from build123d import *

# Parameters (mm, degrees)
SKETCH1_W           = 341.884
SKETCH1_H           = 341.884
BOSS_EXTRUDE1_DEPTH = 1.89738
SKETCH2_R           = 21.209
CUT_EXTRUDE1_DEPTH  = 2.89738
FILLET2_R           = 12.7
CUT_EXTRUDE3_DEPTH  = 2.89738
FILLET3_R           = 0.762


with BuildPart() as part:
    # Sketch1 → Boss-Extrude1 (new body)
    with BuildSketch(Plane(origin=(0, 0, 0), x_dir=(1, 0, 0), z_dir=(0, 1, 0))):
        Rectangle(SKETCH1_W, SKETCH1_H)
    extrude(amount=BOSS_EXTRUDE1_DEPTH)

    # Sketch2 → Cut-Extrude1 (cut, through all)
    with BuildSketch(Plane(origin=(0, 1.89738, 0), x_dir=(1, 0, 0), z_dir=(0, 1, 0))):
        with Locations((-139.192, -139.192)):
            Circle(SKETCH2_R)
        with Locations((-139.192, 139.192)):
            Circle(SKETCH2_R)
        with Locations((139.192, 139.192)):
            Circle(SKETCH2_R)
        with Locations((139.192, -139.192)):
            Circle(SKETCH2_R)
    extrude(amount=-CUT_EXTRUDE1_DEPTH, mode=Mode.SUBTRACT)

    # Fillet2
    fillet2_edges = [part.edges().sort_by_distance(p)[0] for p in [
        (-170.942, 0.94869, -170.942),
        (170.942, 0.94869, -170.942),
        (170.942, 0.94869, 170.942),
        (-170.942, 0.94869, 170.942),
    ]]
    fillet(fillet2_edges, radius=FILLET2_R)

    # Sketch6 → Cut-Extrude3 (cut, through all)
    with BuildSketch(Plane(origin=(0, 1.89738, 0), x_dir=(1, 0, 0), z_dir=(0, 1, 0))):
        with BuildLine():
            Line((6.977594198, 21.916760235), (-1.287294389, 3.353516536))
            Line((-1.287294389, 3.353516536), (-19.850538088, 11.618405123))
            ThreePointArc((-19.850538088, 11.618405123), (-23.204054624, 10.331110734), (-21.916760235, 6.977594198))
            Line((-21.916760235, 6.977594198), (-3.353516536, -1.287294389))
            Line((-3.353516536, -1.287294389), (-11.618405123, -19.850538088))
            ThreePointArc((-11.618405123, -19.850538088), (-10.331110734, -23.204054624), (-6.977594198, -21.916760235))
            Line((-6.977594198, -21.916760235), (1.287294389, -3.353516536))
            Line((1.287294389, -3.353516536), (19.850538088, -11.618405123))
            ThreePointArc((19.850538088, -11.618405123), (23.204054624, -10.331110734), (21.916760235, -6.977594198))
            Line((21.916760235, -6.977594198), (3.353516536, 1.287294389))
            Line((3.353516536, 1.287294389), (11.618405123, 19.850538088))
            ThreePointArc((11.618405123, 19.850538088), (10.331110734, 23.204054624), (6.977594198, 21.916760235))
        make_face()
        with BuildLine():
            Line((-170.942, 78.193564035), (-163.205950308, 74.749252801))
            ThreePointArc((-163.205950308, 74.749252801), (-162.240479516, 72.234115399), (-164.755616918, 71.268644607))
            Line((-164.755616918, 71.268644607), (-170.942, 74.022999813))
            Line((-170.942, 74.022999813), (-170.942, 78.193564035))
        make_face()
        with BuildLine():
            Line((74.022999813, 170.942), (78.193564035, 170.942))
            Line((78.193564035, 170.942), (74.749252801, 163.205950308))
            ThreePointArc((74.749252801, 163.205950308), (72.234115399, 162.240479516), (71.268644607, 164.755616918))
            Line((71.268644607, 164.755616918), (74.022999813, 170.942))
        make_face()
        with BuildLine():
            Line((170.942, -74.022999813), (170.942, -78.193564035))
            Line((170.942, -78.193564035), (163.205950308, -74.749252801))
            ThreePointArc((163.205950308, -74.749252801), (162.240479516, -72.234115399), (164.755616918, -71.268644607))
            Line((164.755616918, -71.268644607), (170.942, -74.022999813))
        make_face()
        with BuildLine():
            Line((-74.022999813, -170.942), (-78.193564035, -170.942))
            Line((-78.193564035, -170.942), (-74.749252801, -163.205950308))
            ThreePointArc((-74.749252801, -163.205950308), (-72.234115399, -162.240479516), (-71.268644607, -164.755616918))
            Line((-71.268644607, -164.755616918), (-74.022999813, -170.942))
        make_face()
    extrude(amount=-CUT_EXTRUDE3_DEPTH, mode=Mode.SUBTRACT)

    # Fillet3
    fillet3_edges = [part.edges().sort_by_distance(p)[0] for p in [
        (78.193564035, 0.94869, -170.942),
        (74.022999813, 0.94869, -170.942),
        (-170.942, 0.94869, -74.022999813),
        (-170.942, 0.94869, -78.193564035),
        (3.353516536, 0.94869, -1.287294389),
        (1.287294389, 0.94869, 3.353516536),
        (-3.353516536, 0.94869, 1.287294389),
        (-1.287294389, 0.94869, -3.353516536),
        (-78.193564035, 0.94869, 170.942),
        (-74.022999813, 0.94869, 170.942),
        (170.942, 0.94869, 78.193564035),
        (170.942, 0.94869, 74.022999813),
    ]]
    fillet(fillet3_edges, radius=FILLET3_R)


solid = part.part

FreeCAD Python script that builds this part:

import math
import FreeCAD as App
import Part
import Sketcher
from FreeCAD import Vector
Q = App.Units.Quantity


def edges_at(feature, points):
    """Names of the edges that pass closest to the given points."""
    edges = feature.Shape.Edges
    near = lambda p: min(range(len(edges)), key=lambda i: edges[i].distToShape(Part.Vertex(*p))[0])
    return sorted({f"Edge{near(p) + 1}" for p in points})


def add_polygon(sketch, points):
    """Adds a closed chain of lines whose ends are joined by coincident constraints."""
    first, n = sketch.GeometryCount, len(points)
    for a, b in zip(points, points[1:] + points[:1]):
        sketch.addGeometry(Part.LineSegment(App.Vector(*a, 0), App.Vector(*b, 0)), False)
    for i in range(n):
        sketch.addConstraint(Sketcher.Constraint("Coincident", first + i, 2, first + (i + 1) % n, 1))

doc = App.newDocument("Part")
params = doc.addObject("Spreadsheet::Sheet", "Params")
for row, (alias, value) in enumerate([
    ("sketch1_width", "13.46 in"),
    ("pad1_length", "0.0747 in"),
    ("sketch2_diameter", "1.67 in"),
    ("fillet_radius", "0.5 in"),
    ("sketch3_radius", "0.1 in"),
    ("sketch3_radius2", "0.075 in"),
    ("sketch3_length", "0.8 in"),
    ("fillet2_radius", "0.03 in"),
], start=1):
    params.set(f"A{row}", alias)
    params.set(f"B{row}", "=" + value)
    params.setAlias(f"B{row}", alias)

body = doc.addObject("PartDesign::Body", "Body")

sketch1 = body.newObject("Sketcher::SketchObject", "Sketch")
sketch1.AttachmentSupport = (doc.getObject("XZ_Plane"), [""])
sketch1.MapMode = "FlatFace"
add_polygon(sketch1, [(-171, -171), (-171, 171), (171, 171), (171, -171)])
sketch1.addConstraint([
    Sketcher.Constraint("Vertical", 0),
    Sketcher.Constraint("Horizontal", 1),
    Sketcher.Constraint("Vertical", 2),
    Sketcher.Constraint("Horizontal", 3),
    Sketcher.Constraint("Symmetric", 0, 2, 2, 2, -1, 1),
    Sketcher.Constraint("Equal", 3, 0),
    Sketcher.Constraint("DistanceX", 1, 1, 1, 2, Q("13.46 in")),
])
sketch1.setExpression("Constraints[10]", "Params.sketch1_width")
pad1 = body.newObject("PartDesign::Pad", "Pad")
pad1.Profile = sketch1
pad1.setExpression("Length", "Params.pad1_length")
pad1.Reversed = True

sketch2 = body.newObject("Sketcher::SketchObject", "Sketch001")
sketch2.AttachmentSupport = (doc.getObject("XZ_Plane"), [""])
sketch2.MapMode = "FlatFace"
sketch2.AttachmentOffset = App.Placement(Vector(0, 0, -0.0747 * 25.4), App.Rotation())
sketch2.addGeometry([
    Part.Circle(Vector(-139, 139, 0), Vector(0, 0, 1), 21),
    Part.Circle(Vector(-139, -139, 0), Vector(0, 0, 1), 21),
    Part.Circle(Vector(139, -139, 0), Vector(0, 0, 1), 21),
    Part.Circle(Vector(139, 139, 0), Vector(0, 0, 1), 21),
], False)
sketch2.addConstraint([
    Sketcher.Constraint("Equal", 0, 1),
    Sketcher.Constraint("Equal", 1, 2),
    Sketcher.Constraint("Equal", 2, 3),
    Sketcher.Constraint("Symmetric", 0, 3, 2, 3, -1, 1),
    Sketcher.Constraint("Symmetric", 1, 3, 3, 3, -1, 1),
    Sketcher.Constraint("Symmetric", 1, 3, 2, 3, -2),
    Sketcher.Constraint("Diameter", 0, Q("1.67 in")),
    Sketcher.Constraint("DistanceX", 0, 3, -1, 1, Q("5.48 in")),
    Sketcher.Constraint("DistanceY", -1, 1, 0, 3, Q("5.48 in")),
])
sketch2.setExpression("Constraints[6]", "Params.sketch2_diameter")
pocket1 = body.newObject("PartDesign::Pocket", "Pocket")
pocket1.Profile = sketch2
pocket1.Type = "ThroughAll"
pocket1.Reversed = True
doc.recompute()

fillet = body.newObject("PartDesign::Fillet", "Fillet")
fillet.Base = (pocket1, edges_at(pocket1, [
    (-170.942, 0.949, -170.942),
    (170.942, 0.949, -170.942),
    (170.942, 0.949, 170.942),
    (-170.942, 0.949, 170.942),
]))
fillet.setExpression("Radius", "Params.fillet_radius")

sketch3 = body.newObject("Sketcher::SketchObject", "Sketch002")
sketch3.AttachmentSupport = (doc.getObject("XZ_Plane"), [""])
sketch3.MapMode = "FlatFace"
sketch3.AttachmentOffset = App.Placement(Vector(0, 0, -0.0747 * 25.4), App.Rotation())
sketch3.addGeometry([
    Part.LineSegment(Vector(7, -21.9, 0), Vector(-1.3, -3.4, 0)),
    Part.LineSegment(Vector(-1.3, -3.4, 0), Vector(-19.9, -11.6, 0)),
    Part.ArcOfCircle(Part.Circle(Vector(-20.9, -9.3, 0), Vector(0, 0, 1), 2.5), math.radians(114), math.radians(294)),
    Part.LineSegment(Vector(-21.9, -7, 0), Vector(-3.4, 1.3, 0)),
    Part.LineSegment(Vector(-3.4, 1.3, 0), Vector(-11.6, 19.9, 0)),
    Part.ArcOfCircle(Part.Circle(Vector(-9.3, 20.9, 0), Vector(0, 0, 1), 2.5), math.radians(24), math.radians(204)),
    Part.LineSegment(Vector(-7, 21.9, 0), Vector(1.3, 3.4, 0)),
    Part.LineSegment(Vector(1.3, 3.4, 0), Vector(19.9, 11.6, 0)),
    Part.ArcOfCircle(Part.Circle(Vector(20.9, 9.3, 0), Vector(0, 0, 1), 2.5), math.radians(-66), math.radians(114)),
    Part.LineSegment(Vector(21.9, 7, 0), Vector(3.4, -1.3, 0)),
    Part.LineSegment(Vector(3.4, -1.3, 0), Vector(11.6, -19.9, 0)),
    Part.ArcOfCircle(Part.Circle(Vector(9.3, -20.9, 0), Vector(0, 0, 1), 2.5), math.radians(-156), math.radians(24)),
    Part.LineSegment(Vector(-163.2, -74.7, 0), Vector(-170.9, -78.2, 0)),
    Part.LineSegment(Vector(-170.9, -78.2, 0), Vector(-170.9, -74, 0)),
    Part.LineSegment(Vector(-170.9, -74, 0), Vector(-164.8, -71.3, 0)),
    Part.ArcOfCircle(Part.Circle(Vector(-164, -73, 0), Vector(0, 0, 1), 1.9), math.radians(-66), math.radians(114)),
    Part.LineSegment(Vector(78.2, -170.9, 0), Vector(74, -170.9, 0)),
    Part.LineSegment(Vector(74, -170.9, 0), Vector(71.3, -164.8, 0)),
    Part.ArcOfCircle(Part.Circle(Vector(73, -164, 0), Vector(0, 0, 1), 1.9), math.radians(24), math.radians(204)),
    Part.LineSegment(Vector(74.7, -163.2, 0), Vector(78.2, -170.9, 0)),
    Part.LineSegment(Vector(170.9, 78.2, 0), Vector(170.9, 74, 0)),
    Part.LineSegment(Vector(170.9, 74, 0), Vector(164.8, 71.3, 0)),
    Part.ArcOfCircle(Part.Circle(Vector(164, 73, 0), Vector(0, 0, 1), 1.9), math.radians(114), math.radians(294)),
    Part.LineSegment(Vector(163.2, 74.7, 0), Vector(170.9, 78.2, 0)),
    Part.LineSegment(Vector(-78.2, 170.9, 0), Vector(-74, 170.9, 0)),
    Part.LineSegment(Vector(-74, 170.9, 0), Vector(-71.3, 164.8, 0)),
    Part.ArcOfCircle(Part.Circle(Vector(-73, 164, 0), Vector(0, 0, 1), 1.9), math.radians(-156), math.radians(24)),
    Part.LineSegment(Vector(-74.7, 163.2, 0), Vector(-78.2, 170.9, 0)),
], False)
sketch3.addConstraint([
    Sketcher.Constraint("Coincident", 0, 2, 1, 1),
    Sketcher.Constraint("Tangent", 1, 2, 2, 2),
    Sketcher.Constraint("Tangent", 2, 1, 3, 1),
    Sketcher.Constraint("Coincident", 3, 2, 4, 1),
    Sketcher.Constraint("Tangent", 4, 2, 5, 2),
    Sketcher.Constraint("Tangent", 5, 1, 6, 1),
    Sketcher.Constraint("Coincident", 6, 2, 7, 1),
    Sketcher.Constraint("Tangent", 7, 2, 8, 2),
    Sketcher.Constraint("Tangent", 8, 1, 9, 1),
    Sketcher.Constraint("Coincident", 9, 2, 10, 1),
    Sketcher.Constraint("Tangent", 10, 2, 11, 2),
    Sketcher.Constraint("Tangent", 11, 1, 0, 1),
    Sketcher.Constraint("Coincident", 12, 2, 13, 1),
    Sketcher.Constraint("Coincident", 13, 2, 14, 1),
    Sketcher.Constraint("Tangent", 14, 2, 15, 2),
    Sketcher.Constraint("Tangent", 15, 1, 12, 1),
    Sketcher.Constraint("Coincident", 16, 2, 17, 1),
    Sketcher.Constraint("Tangent", 17, 2, 18, 2),
    Sketcher.Constraint("Tangent", 18, 1, 19, 1),
    Sketcher.Constraint("Coincident", 19, 2, 16, 1),
    Sketcher.Constraint("Coincident", 20, 2, 21, 1),
    Sketcher.Constraint("Tangent", 21, 2, 22, 2),
    Sketcher.Constraint("Tangent", 22, 1, 23, 1),
    Sketcher.Constraint("Coincident", 23, 2, 20, 1),
    Sketcher.Constraint("Coincident", 24, 2, 25, 1),
    Sketcher.Constraint("Tangent", 25, 2, 26, 2),
    Sketcher.Constraint("Tangent", 26, 1, 27, 1),
    Sketcher.Constraint("Coincident", 27, 2, 24, 1),
    Sketcher.Constraint("Vertical", 13),
    Sketcher.Constraint("Horizontal", 16),
    Sketcher.Constraint("Vertical", 20),
    Sketcher.Constraint("Horizontal", 24),
    Sketcher.Constraint("Equal", 2, 5),
    Sketcher.Constraint("Equal", 5, 8),
    Sketcher.Constraint("Equal", 8, 11),
    Sketcher.Constraint("Equal", 15, 18),
    Sketcher.Constraint("Equal", 18, 22),
    Sketcher.Constraint("Equal", 22, 26),
    Sketcher.Constraint("Symmetric", 2, 3, 8, 3, -1, 1),
    Sketcher.Constraint("Symmetric", 5, 3, 11, 3, -1, 1),
    Sketcher.Constraint("Symmetric", 15, 3, 22, 3, -1, 1),
    Sketcher.Constraint("Symmetric", 18, 3, 26, 3, -1, 1),
    Sketcher.Constraint("Symmetric", 0, 2, 6, 2, -1, 1),
    Sketcher.Constraint("Symmetric", 3, 2, 9, 2, -1, 1),
    Sketcher.Constraint("Symmetric", 13, 2, 20, 2, -1, 1),
    Sketcher.Constraint("Symmetric", 16, 2, 24, 2, -1, 1),
    Sketcher.Constraint("Perpendicular", 0, 1),
    Sketcher.Constraint("Parallel", 1, 3),
    Sketcher.Constraint("Perpendicular", 3, 4),
    Sketcher.Constraint("Perpendicular", 10, 12),
    Sketcher.Constraint("Parallel", 12, 14),
    Sketcher.Constraint("Perpendicular", 14, 17),
    Sketcher.Constraint("Parallel", 17, 19),
    Sketcher.Constraint("Parallel", 21, 23),
    Sketcher.Constraint("Parallel", 25, 27),
    Sketcher.Constraint("Equal", 0, 1),
    Sketcher.Constraint("Equal", 1, 3),
    Sketcher.Constraint("Equal", 3, 4),
    Sketcher.Constraint("Equal", 14, 17),
    Sketcher.Constraint("Radius", 2, Q("0.1 in")),
    Sketcher.Constraint("Angle", 0, Q("114 deg")),
    Sketcher.Constraint("Radius", 15, Q("0.075 in")),
    Sketcher.Constraint("Distance", 0, Q("0.8 in")),
    Sketcher.Constraint("DistanceX", 12, 2, -1, 1, Q("6.73 in")),
    Sketcher.Constraint("DistanceY", 16, 2, -1, 1, Q("6.73 in")),
    Sketcher.Constraint("DistanceY", 13, 2, -1, 1, Q("74.023 mm")),
    Sketcher.Constraint("DistanceX", -1, 1, 16, 2, Q("74.023 mm")),
    Sketcher.Constraint("DistanceY", 15, 3, 11, 3, Q("52.1253 mm")),
])
sketch3.setExpression("Constraints[59]", "Params.sketch3_radius")
sketch3.setExpression("Constraints[61]", "Params.sketch3_radius2")
sketch3.setExpression("Constraints[62]", "Params.sketch3_length")
pocket2 = body.newObject("PartDesign::Pocket", "Pocket001")
pocket2.Profile = sketch3
pocket2.Type = "ThroughAll"
pocket2.Reversed = True
doc.recompute()

fillet2 = body.newObject("PartDesign::Fillet", "Fillet001")
fillet2.Base = (pocket2, edges_at(pocket2, [
    (78.194, 0.949, -170.942),
    (74.023, 0.949, -170.942),
    (-170.942, 0.949, -74.023),
    (-170.942, 0.949, -78.194),
    (3.354, 0.949, -1.287),
    (1.287, 0.949, 3.354),
    (-3.354, 0.949, 1.287),
    (-1.287, 0.949, -3.354),
    (-78.194, 0.949, 170.942),
    (-74.023, 0.949, 170.942),
    (170.942, 0.949, 78.194),
    (170.942, 0.949, 74.023),
]))
fillet2.setExpression("Radius", "Params.fillet2_radius")

doc.recompute()
